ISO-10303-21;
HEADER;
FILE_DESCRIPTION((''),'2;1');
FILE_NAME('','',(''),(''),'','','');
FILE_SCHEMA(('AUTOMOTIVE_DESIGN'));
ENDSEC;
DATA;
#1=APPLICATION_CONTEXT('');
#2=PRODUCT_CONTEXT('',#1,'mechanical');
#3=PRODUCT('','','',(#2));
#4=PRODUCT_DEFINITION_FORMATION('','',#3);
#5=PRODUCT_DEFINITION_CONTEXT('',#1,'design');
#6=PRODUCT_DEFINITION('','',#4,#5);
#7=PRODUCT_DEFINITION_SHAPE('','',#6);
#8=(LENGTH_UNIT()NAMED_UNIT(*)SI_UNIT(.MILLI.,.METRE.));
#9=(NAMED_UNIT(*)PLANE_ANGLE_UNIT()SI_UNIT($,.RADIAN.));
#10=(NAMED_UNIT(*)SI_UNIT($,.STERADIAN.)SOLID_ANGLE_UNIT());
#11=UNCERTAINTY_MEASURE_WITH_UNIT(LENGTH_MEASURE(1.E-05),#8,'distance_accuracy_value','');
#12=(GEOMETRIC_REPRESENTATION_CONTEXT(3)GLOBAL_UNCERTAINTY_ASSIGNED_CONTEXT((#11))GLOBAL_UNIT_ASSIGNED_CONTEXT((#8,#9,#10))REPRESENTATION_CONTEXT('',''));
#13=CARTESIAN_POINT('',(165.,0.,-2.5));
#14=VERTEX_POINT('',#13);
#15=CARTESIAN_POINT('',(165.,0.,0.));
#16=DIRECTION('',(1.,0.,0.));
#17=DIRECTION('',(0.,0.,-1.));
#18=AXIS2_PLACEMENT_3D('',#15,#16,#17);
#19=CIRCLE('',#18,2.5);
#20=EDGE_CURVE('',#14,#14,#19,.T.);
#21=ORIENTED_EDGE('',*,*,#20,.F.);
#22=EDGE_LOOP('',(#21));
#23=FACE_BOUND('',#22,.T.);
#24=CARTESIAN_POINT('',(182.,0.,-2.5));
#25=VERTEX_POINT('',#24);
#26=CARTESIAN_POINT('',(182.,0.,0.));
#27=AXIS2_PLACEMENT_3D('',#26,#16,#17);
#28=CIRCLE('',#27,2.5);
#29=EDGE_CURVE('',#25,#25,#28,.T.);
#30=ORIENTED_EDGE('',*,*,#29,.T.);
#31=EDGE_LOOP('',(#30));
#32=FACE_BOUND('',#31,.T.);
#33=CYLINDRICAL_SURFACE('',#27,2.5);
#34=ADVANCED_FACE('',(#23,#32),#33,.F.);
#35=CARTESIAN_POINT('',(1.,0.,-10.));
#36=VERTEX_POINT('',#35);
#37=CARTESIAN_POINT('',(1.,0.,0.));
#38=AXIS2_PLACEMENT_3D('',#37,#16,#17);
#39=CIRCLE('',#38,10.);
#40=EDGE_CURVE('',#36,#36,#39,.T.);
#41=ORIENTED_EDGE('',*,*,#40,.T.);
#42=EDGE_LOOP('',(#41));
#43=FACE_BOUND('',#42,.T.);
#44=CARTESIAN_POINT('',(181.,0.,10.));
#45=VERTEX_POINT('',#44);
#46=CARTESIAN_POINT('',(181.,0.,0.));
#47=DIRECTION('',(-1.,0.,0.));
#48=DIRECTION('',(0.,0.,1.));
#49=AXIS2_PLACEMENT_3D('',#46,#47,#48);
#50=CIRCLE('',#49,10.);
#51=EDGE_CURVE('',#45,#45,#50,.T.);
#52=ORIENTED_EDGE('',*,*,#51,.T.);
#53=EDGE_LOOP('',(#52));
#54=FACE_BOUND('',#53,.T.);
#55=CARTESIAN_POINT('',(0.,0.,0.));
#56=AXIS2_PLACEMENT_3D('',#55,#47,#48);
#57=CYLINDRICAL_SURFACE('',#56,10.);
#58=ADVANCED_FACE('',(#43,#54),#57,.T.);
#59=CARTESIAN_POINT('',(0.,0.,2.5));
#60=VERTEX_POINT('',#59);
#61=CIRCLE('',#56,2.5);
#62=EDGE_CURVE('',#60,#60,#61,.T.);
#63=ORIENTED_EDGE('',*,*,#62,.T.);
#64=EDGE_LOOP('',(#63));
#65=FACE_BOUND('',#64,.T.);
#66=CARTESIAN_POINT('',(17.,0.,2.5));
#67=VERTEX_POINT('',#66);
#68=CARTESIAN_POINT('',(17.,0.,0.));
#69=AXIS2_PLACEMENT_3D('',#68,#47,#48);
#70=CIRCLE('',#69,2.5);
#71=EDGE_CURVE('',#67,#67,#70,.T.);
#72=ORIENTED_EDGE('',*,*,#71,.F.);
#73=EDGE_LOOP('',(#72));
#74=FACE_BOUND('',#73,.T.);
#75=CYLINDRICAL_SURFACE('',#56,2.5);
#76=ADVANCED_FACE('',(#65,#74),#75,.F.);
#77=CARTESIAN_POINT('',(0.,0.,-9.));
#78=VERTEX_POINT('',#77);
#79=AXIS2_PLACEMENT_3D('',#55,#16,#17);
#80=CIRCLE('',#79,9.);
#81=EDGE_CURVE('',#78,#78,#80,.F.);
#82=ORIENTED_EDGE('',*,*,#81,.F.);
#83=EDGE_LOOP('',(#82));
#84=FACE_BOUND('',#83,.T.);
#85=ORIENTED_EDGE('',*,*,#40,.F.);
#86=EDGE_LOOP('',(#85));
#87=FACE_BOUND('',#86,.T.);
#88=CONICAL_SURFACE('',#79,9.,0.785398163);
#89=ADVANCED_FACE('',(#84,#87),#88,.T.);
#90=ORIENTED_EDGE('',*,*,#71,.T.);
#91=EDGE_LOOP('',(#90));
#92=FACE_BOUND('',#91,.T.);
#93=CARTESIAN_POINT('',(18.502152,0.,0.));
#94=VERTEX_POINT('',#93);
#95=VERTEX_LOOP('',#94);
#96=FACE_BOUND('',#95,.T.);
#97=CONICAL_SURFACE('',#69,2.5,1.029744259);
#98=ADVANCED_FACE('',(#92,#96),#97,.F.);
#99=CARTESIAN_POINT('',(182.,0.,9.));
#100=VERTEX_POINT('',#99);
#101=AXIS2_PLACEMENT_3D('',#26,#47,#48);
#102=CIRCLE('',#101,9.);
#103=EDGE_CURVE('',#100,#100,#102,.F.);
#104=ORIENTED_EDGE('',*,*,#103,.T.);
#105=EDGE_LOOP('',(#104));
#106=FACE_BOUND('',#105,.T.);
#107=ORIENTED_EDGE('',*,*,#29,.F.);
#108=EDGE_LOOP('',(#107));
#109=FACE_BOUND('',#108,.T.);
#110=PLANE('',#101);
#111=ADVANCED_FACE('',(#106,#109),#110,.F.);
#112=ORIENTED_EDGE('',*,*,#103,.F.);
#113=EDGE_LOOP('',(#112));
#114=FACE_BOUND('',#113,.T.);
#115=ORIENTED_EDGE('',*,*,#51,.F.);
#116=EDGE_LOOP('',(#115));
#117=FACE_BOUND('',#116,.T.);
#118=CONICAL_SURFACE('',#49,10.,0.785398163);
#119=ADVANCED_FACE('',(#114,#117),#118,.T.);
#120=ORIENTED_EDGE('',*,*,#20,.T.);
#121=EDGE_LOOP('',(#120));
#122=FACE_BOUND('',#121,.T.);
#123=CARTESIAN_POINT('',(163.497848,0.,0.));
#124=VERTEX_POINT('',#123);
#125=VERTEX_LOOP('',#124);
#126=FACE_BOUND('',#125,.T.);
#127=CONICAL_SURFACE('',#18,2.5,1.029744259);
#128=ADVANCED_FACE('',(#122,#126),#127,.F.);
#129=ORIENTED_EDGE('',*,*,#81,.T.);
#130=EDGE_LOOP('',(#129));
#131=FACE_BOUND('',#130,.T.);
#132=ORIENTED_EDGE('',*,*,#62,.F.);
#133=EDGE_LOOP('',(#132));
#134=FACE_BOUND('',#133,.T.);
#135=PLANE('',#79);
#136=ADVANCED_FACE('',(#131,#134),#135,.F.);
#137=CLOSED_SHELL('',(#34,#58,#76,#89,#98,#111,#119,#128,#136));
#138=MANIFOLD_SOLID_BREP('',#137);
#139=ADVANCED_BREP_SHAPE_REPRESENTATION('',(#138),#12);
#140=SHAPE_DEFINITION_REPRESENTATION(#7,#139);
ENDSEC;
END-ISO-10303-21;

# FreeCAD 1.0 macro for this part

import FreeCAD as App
import Part
import Sketcher

V = App.Vector


def edges_at(feature, points):
    """Names of the edges that pass closest to the given points."""
    edges = feature.Shape.Edges
    near = lambda p: min(range(len(edges)), key=lambda i: edges[i].distToShape(Part.Vertex(*p))[0])
    return sorted({f"Edge{near(p) + 1}" for p in points})


def add_polygon(sketch, points):
    """Adds a closed chain of lines whose ends are joined by coincident constraints."""
    first, n = sketch.GeometryCount, len(points)
    for a, b in zip(points, points[1:] + points[:1]):
        sketch.addGeometry(Part.LineSegment(App.Vector(*a, 0), App.Vector(*b, 0)), False)
    for i in range(n):
        sketch.addConstraint(Sketcher.Constraint("Coincident", first + i, 2, first + (i + 1) % n, 1))

doc = App.newDocument("Part")
body = doc.addObject("PartDesign::Body", "Body")

sketch1 = doc.addObject("Sketcher::SketchObject", "Sketch")
body.addObject(sketch1)
sketch1.AttachmentSupport = (doc.XY_Plane, [""])
sketch1.MapMode = "FlatFace"
add_polygon(sketch1, [(0, 10), (0, 0), (182, 0), (182, 10)])
sketch1.addConstraint([
    Sketcher.Constraint("Vertical", 0),
    Sketcher.Constraint("Horizontal", 1),
    Sketcher.Constraint("Vertical", 2),
    Sketcher.Constraint("Horizontal", 3),
    Sketcher.Constraint("Coincident", 0, 2, -1, 1),
    Sketcher.Constraint("DistanceX", 1, 1, 1, 2, 182.0),
    Sketcher.Constraint("DistanceY", 0, 2, 0, 1, 10.0),
])
revolution = doc.addObject("PartDesign::Revolution", "Revolution")
body.addObject(revolution)
revolution.Profile = sketch1
revolution.ReferenceAxis = (sketch1, ["H_Axis"])
revolution.Angle = 360
doc.recompute()

chamfer = doc.addObject("PartDesign::Chamfer", "Chamfer")
body.addObject(chamfer)
chamfer.Base = (revolution, edges_at(revolution, [(182, 0, -10), (0, 0, -10)]))
chamfer.Size = 1

sketch2 = doc.addObject("Sketcher::SketchObject", "Sketch001")
body.addObject(sketch2)
sketch2.AttachmentSupport = (doc.YZ_Plane, [""])
sketch2.MapMode = "FlatFace"
sketch2.AttachmentOffset = App.Placement(V(0, 0, 182), App.Rotation())
sketch2.addGeometry(Part.Circle(V(0, 0, 0), V(0, 0, 1), 2.5), False)
sketch2.addConstraint([
    Sketcher.Constraint("Coincident", 0, 3, -1, 1),
    Sketcher.Constraint("Diameter", 0, 5.0),
])
doc.recompute()
hole = doc.addObject("PartDesign::Hole", "Hole")
body.addObject(hole)
hole.Profile = sketch2
hole.ThreadType = "None"
hole.Diameter = 5
hole.DepthType = "Dimension"
hole.Depth = 17
hole.DrillPoint = "Angled"
hole.DrillPointAngle = 118

sketch3 = doc.addObject("Sketcher::SketchObject", "Sketch002")
body.addObject(sketch3)
sketch3.AttachmentSupport = (doc.YZ_Plane, [""])
sketch3.MapMode = "FlatFace"
sketch3.addGeometry(Part.Circle(V(0, 0, 0), V(0, 0, 1), 2.5), False)
sketch3.addConstraint([
    Sketcher.Constraint("Coincident", 0, 3, -1, 1),
    Sketcher.Constraint("Diameter", 0, 5.0),
])
doc.recompute()
hole2 = doc.addObject("PartDesign::Hole", "Hole001")
body.addObject(hole2)
hole2.Profile = sketch3
hole2.ThreadType = "None"
hole2.Diameter = 5
hole2.DepthType = "Dimension"
hole2.Depth = 17
hole2.DrillPoint = "Angled"
hole2.DrillPointAngle = 118
hole2.Reversed = True

doc.recompute()
